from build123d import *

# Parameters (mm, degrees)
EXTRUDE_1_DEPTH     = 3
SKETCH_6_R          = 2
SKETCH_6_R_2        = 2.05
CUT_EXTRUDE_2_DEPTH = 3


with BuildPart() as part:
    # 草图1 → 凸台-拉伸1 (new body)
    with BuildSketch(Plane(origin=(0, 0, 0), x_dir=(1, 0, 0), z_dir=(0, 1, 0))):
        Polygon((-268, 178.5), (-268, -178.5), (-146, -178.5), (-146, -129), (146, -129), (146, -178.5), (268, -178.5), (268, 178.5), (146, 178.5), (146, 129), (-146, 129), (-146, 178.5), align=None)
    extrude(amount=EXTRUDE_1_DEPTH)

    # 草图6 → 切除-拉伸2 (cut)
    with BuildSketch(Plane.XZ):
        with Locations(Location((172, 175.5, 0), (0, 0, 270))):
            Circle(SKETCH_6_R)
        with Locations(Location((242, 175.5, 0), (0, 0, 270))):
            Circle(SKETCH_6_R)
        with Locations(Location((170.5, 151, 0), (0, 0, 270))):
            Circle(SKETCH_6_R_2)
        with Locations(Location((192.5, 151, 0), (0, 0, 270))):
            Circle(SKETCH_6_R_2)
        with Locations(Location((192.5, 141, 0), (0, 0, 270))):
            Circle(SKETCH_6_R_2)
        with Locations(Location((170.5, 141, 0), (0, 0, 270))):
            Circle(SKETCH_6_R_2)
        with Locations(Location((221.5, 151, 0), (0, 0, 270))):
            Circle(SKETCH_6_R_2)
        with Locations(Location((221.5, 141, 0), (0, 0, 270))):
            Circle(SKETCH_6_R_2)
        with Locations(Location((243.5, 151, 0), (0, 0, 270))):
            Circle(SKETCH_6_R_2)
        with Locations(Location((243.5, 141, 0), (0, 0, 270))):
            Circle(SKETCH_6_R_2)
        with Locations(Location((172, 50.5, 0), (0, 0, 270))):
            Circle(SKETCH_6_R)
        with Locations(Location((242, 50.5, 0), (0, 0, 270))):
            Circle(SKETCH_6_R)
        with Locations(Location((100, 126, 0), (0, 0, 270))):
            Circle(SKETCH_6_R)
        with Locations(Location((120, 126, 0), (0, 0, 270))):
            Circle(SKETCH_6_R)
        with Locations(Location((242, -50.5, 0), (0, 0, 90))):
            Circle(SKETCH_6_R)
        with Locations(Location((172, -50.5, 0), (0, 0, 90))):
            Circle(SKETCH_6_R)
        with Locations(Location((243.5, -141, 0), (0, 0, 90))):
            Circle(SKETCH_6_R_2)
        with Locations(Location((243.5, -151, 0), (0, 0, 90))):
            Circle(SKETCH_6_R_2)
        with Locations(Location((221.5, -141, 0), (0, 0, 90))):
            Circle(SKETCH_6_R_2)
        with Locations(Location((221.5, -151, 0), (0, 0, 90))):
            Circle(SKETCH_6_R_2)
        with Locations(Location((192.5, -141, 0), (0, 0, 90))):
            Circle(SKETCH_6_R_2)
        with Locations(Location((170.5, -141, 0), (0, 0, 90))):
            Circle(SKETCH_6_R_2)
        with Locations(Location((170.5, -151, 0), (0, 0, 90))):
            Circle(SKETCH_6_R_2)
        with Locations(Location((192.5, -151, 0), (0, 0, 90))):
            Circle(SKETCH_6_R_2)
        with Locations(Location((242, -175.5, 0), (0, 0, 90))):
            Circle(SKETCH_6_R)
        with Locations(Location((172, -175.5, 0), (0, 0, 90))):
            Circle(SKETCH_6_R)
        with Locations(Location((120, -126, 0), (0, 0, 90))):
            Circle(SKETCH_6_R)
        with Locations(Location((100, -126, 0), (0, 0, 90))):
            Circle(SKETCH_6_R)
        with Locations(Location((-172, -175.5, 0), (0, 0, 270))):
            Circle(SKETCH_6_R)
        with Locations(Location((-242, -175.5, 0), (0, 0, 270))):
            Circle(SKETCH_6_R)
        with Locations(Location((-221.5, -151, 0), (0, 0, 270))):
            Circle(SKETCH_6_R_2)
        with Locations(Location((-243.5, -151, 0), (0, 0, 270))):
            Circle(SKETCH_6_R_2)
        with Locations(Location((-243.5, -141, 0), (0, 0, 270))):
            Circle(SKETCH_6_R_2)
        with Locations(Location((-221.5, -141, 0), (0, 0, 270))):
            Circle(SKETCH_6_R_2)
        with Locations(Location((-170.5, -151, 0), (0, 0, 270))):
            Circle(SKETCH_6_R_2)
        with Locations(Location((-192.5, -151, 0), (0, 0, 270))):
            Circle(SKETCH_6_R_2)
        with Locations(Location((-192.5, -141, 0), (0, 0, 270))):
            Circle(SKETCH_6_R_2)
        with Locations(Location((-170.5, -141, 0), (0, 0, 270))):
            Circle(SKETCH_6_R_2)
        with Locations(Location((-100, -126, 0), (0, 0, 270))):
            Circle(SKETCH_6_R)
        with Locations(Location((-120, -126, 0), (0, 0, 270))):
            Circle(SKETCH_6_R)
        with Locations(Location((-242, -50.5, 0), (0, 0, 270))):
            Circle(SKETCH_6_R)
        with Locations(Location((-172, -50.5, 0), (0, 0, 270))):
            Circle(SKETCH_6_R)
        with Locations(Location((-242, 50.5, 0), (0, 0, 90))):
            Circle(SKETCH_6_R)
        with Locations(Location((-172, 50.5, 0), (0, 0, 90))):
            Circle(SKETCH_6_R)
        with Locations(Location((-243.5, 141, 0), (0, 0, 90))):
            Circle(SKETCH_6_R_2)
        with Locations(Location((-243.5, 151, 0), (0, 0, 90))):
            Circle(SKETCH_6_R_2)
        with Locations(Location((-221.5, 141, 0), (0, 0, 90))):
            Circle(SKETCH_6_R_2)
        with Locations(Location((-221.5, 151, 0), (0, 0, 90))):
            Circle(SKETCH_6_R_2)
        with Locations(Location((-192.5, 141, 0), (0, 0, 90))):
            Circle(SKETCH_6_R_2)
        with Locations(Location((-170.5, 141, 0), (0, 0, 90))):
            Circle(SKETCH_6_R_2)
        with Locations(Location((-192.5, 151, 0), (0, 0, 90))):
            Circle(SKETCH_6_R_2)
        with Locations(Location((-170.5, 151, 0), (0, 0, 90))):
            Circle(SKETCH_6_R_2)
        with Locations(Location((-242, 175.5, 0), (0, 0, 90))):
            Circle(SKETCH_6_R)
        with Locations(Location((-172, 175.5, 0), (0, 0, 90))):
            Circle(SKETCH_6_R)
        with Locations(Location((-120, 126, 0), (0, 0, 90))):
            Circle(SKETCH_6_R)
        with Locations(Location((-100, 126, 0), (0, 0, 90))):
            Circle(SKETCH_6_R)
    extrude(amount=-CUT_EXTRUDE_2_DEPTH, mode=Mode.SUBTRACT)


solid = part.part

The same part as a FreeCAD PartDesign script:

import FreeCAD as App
import Part
import Sketcher
from FreeCAD import Vector
Q = App.Units.Quantity

doc = App.newDocument("Part")
params = doc.addObject("Spreadsheet::Sheet", "Params")
for row, (alias, value) in enumerate([
    ("sketch1_width", "122 mm"),
    ("sketch1_width2", "292 mm"),
    ("sketch1_height", "357 mm"),
    ("sketch1_height2", "49.5 mm"),
    ("pad1_length", "3 mm"),
    ("sketch2_diameter", "4 mm"),
    ("sketch2_diameter2", "4.1 mm"),
    ("pocket1_length", "3 mm"),
], start=1):
    params.set(f"A{row}", alias)
    params.set(f"B{row}", "=" + value)
    params.setAlias(f"B{row}", alias)

body = doc.addObject("PartDesign::Body", "Body")

sketch1 = body.newObject("Sketcher::SketchObject", "Sketch")
sketch1.AttachmentSupport = (doc.getObject("XZ_Plane"), [""])
sketch1.MapMode = "FlatFace"
sketch1.addGeometry(Part.LineSegment(Vector(-268, -178, 0), Vector(-268, 178, 0)), False)
sketch1.addGeometry(Part.LineSegment(Vector(-268, 178, 0), Vector(-146, 178, 0)), False)
sketch1.addGeometry(Part.LineSegment(Vector(-146, 178, 0), Vector(-146, 129, 0)), False)
sketch1.addGeometry(Part.LineSegment(Vector(-146, 129, 0), Vector(146, 129, 0)), False)
sketch1.addGeometry(Part.LineSegment(Vector(146, 129, 0), Vector(146, 178, 0)), False)
sketch1.addGeometry(Part.LineSegment(Vector(146, 178, 0), Vector(268, 178, 0)), False)
sketch1.addGeometry(Part.LineSegment(Vector(268, 178, 0), Vector(268, -178, 0)), False)
sketch1.addGeometry(Part.LineSegment(Vector(268, -178, 0), Vector(146, -178, 0)), False)
sketch1.addGeometry(Part.LineSegment(Vector(146, -178, 0), Vector(146, -129, 0)), False)
sketch1.addGeometry(Part.LineSegment(Vector(146, -129, 0), Vector(-146, -129, 0)), False)
sketch1.addGeometry(Part.LineSegment(Vector(-146, -129, 0), Vector(-146, -178, 0)), False)
sketch1.addGeometry(Part.LineSegment(Vector(-146, -178, 0), Vector(-268, -178, 0)), False)
sketch1.addConstraint(Sketcher.Constraint("Coincident", 0, 2, 1, 1))
sketch1.addConstraint(Sketcher.Constraint("Coincident", 1, 2, 2, 1))
sketch1.addConstraint(Sketcher.Constraint("Coincident", 2, 2, 3, 1))
sketch1.addConstraint(Sketcher.Constraint("Coincident", 3, 2, 4, 1))
sketch1.addConstraint(Sketcher.Constraint("Coincident", 4, 2, 5, 1))
sketch1.addConstraint(Sketcher.Constraint("Coincident", 5, 2, 6, 1))
sketch1.addConstraint(Sketcher.Constraint("Coincident", 6, 2, 7, 1))
sketch1.addConstraint(Sketcher.Constraint("Coincident", 7, 2, 8, 1))
sketch1.addConstraint(Sketcher.Constraint("Coincident", 8, 2, 9, 1))
sketch1.addConstraint(Sketcher.Constraint("Coincident", 9, 2, 10, 1))
sketch1.addConstraint(Sketcher.Constraint("Coincident", 10, 2, 11, 1))
sketch1.addConstraint(Sketcher.Constraint("Coincident", 11, 2, 0, 1))
sketch1.addConstraint(Sketcher.Constraint("Vertical", 0))
sketch1.addConstraint(Sketcher.Constraint("Horizontal", 1))
sketch1.addConstraint(Sketcher.Constraint("Vertical", 2))
sketch1.addConstraint(Sketcher.Constraint("Horizontal", 3))
sketch1.addConstraint(Sketcher.Constraint("Vertical", 4))
sketch1.addConstraint(Sketcher.Constraint("Horizontal", 5))
sketch1.addConstraint(Sketcher.Constraint("Vertical", 6))
sketch1.addConstraint(Sketcher.Constraint("Horizontal", 7))
sketch1.addConstraint(Sketcher.Constraint("Vertical", 8))
sketch1.addConstraint(Sketcher.Constraint("Horizontal", 9))
sketch1.addConstraint(Sketcher.Constraint("Vertical", 10))
sketch1.addConstraint(Sketcher.Constraint("Horizontal", 11))
sketch1.addConstraint(Sketcher.Constraint("Symmetric", 0, 2, 6, 2, -1, 1))
sketch1.addConstraint(Sketcher.Constraint("Symmetric", 2, 2, 8, 2, -1, 1))
sketch1.addConstraint(Sketcher.Constraint("Symmetric", 4, 2, 10, 2, -1, 1))
sketch1.addConstraint(Sketcher.Constraint("Symmetric", 1, 2, 4, 2, -2))
sketch1.addConstraint(Sketcher.Constraint("DistanceX", 1, 1, 1, 2, Q("122 mm")))
sketch1.addConstraint(Sketcher.Constraint("DistanceX", 3, 1, 3, 2, Q("292 mm")))
sketch1.addConstraint(Sketcher.Constraint("DistanceY", 0, 1, 0, 2, Q("357 mm")))
sketch1.addConstraint(Sketcher.Constraint("DistanceY", 2, 2, 2, 1, Q("49.5 mm")))
sketch1.setExpression("Constraints[28]", "Params.sketch1_width")
sketch1.setExpression("Constraints[29]", "Params.sketch1_width2")
sketch1.setExpression("Constraints[30]", "Params.sketch1_height")
sketch1.setExpression("Constraints[31]", "Params.sketch1_height2")
pad1 = body.newObject("PartDesign::Pad", "Pad")
pad1.Profile = sketch1
pad1.setExpression("Length", "Params.pad1_length")
pad1.Reversed = True

sketch2 = body.newObject("Sketcher::SketchObject", "Sketch001")
sketch2.AttachmentSupport = (doc.getObject("XZ_Plane"), [""])
sketch2.MapMode = "FlatFace"
sketch2.addGeometry(Part.Circle(Vector(172, 175.5, 0), Vector(0, 0, 1), 2), False)
sketch2.addGeometry(Part.Circle(Vector(242, 175.5, 0), Vector(0, 0, 1), 2), False)
sketch2.addGeometry(Part.Circle(Vector(170.5, 151, 0), Vector(0, 0, 1), 2), False)
sketch2.addGeometry(Part.Circle(Vector(192.5, 151, 0), Vector(0, 0, 1), 2), False)
sketch2.addGeometry(Part.Circle(Vector(192.5, 141, 0), Vector(0, 0, 1), 2), False)
sketch2.addGeometry(Part.Circle(Vector(170.5, 141, 0), Vector(0, 0, 1), 2), False)
sketch2.addGeometry(Part.Circle(Vector(221.5, 151, 0), Vector(0, 0, 1), 2), False)
sketch2.addGeometry(Part.Circle(Vector(221.5, 141, 0), Vector(0, 0, 1), 2), False)
sketch2.addGeometry(Part.Circle(Vector(243.5, 151, 0), Vector(0, 0, 1), 2), False)
sketch2.addGeometry(Part.Circle(Vector(243.5, 141, 0), Vector(0, 0, 1), 2), False)
sketch2.addGeometry(Part.Circle(Vector(172, 50.5, 0), Vector(0, 0, 1), 2), False)
sketch2.addGeometry(Part.Circle(Vector(242, 50.5, 0), Vector(0, 0, 1), 2), False)
sketch2.addGeometry(Part.Circle(Vector(100, 126, 0), Vector(0, 0, 1), 2), False)
sketch2.addGeometry(Part.Circle(Vector(120, 126, 0), Vector(0, 0, 1), 2), False)
sketch2.addGeometry(Part.Circle(Vector(242, -50.5, 0), Vector(0, 0, 1), 2), False)
sketch2.addGeometry(Part.Circle(Vector(172, -50.5, 0), Vector(0, 0, 1), 2), False)
sketch2.addGeometry(Part.Circle(Vector(243.5, -141, 0), Vector(0, 0, 1), 2), False)
sketch2.addGeometry(Part.Circle(Vector(243.5, -151, 0), Vector(0, 0, 1), 2), False)
sketch2.addGeometry(Part.Circle(Vector(221.5, -141, 0), Vector(0, 0, 1), 2), False)
sketch2.addGeometry(Part.Circle(Vector(221.5, -151, 0), Vector(0, 0, 1), 2), False)
sketch2.addGeometry(Part.Circle(Vector(192.5, -141, 0), Vector(0, 0, 1), 2), False)
sketch2.addGeometry(Part.Circle(Vector(170.5, -141, 0), Vector(0, 0, 1), 2), False)
sketch2.addGeometry(Part.Circle(Vector(170.5, -151, 0), Vector(0, 0, 1), 2), False)
sketch2.addGeometry(Part.Circle(Vector(192.5, -151, 0), Vector(0, 0, 1), 2), False)
sketch2.addGeometry(Part.Circle(Vector(242, -175.5, 0), Vector(0, 0, 1), 2), False)
sketch2.addGeometry(Part.Circle(Vector(172, -175.5, 0), Vector(0, 0, 1), 2), False)
sketch2.addGeometry(Part.Circle(Vector(120, -126, 0), Vector(0, 0, 1), 2), False)
sketch2.addGeometry(Part.Circle(Vector(100, -126, 0), Vector(0, 0, 1), 2), False)
sketch2.addGeometry(Part.Circle(Vector(-172, -175.5, 0), Vector(0, 0, 1), 2), False)
sketch2.addGeometry(Part.Circle(Vector(-242, -175.5, 0), Vector(0, 0, 1), 2), False)
sketch2.addGeometry(Part.Circle(Vector(-221.5, -151, 0), Vector(0, 0, 1), 2), False)
sketch2.addGeometry(Part.Circle(Vector(-243.5, -151, 0), Vector(0, 0, 1), 2), False)
sketch2.addGeometry(Part.Circle(Vector(-243.5, -141, 0), Vector(0, 0, 1), 2), False)
sketch2.addGeometry(Part.Circle(Vector(-221.5, -141, 0), Vector(0, 0, 1), 2), False)
sketch2.addGeometry(Part.Circle(Vector(-170.5, -151, 0), Vector(0, 0, 1), 2), False)
sketch2.addGeometry(Part.Circle(Vector(-192.5, -151, 0), Vector(0, 0, 1), 2), False)
sketch2.addGeometry(Part.Circle(Vector(-192.5, -141, 0), Vector(0, 0, 1), 2), False)
sketch2.addGeometry(Part.Circle(Vector(-170.5, -141, 0), Vector(0, 0, 1), 2), False)
sketch2.addGeometry(Part.Circle(Vector(-100, -126, 0), Vector(0, 0, 1), 2), False)
sketch2.addGeometry(Part.Circle(Vector(-120, -126, 0), Vector(0, 0, 1), 2), False)
sketch2.addGeometry(Part.Circle(Vector(-242, -50.5, 0), Vector(0, 0, 1), 2), False)
sketch2.addGeometry(Part.Circle(Vector(-172, -50.5, 0), Vector(0, 0, 1), 2), False)
sketch2.addGeometry(Part.Circle(Vector(-242, 50.5, 0), Vector(0, 0, 1), 2), False)
sketch2.addGeometry(Part.Circle(Vector(-172, 50.5, 0), Vector(0, 0, 1), 2), False)
sketch2.addGeometry(Part.Circle(Vector(-243.5, 141, 0), Vector(0, 0, 1), 2), False)
sketch2.addGeometry(Part.Circle(Vector(-243.5, 151, 0), Vector(0, 0, 1), 2), False)
sketch2.addGeometry(Part.Circle(Vector(-221.5, 141, 0), Vector(0, 0, 1), 2), False)
sketch2.addGeometry(Part.Circle(Vector(-221.5, 151, 0), Vector(0, 0, 1), 2), False)
sketch2.addGeometry(Part.Circle(Vector(-192.5, 141, 0), Vector(0, 0, 1), 2), False)
sketch2.addGeometry(Part.Circle(Vector(-170.5, 141, 0), Vector(0, 0, 1), 2), False)
sketch2.addGeometry(Part.Circle(Vector(-192.5, 151, 0), Vector(0, 0, 1), 2), False)
sketch2.addGeometry(Part.Circle(Vector(-170.5, 151, 0), Vector(0, 0, 1), 2), False)
sketch2.addGeometry(Part.Circle(Vector(-242, 175.5, 0), Vector(0, 0, 1), 2), False)
sketch2.addGeometry(Part.Circle(Vector(-172, 175.5, 0), Vector(0, 0, 1), 2), False)
sketch2.addGeometry(Part.Circle(Vector(-120, 126, 0), Vector(0, 0, 1), 2), False)
sketch2.addGeometry(Part.Circle(Vector(-100, 126, 0), Vector(0, 0, 1), 2), False)
sketch2.addConstraint(Sketcher.Constraint("Equal", 0, 1))
sketch2.addConstraint(Sketcher.Constraint("Equal", 2, 3))
sketch2.addConstraint(Sketcher.Constraint("Equal", 3, 4))
sketch2.addConstraint(Sketcher.Constraint("Equal", 4, 5))
sketch2.addConstraint(Sketcher.Constraint("Equal", 5, 6))
sketch2.addConstraint(Sketcher.Constraint("Equal", 6, 7))
sketch2.addConstraint(Sketcher.Constraint("Equal", 7, 8))
sketch2.addConstraint(Sketcher.Constraint("Equal", 8, 9))
sketch2.addConstraint(Sketcher.Constraint("Equal", 1, 10))
sketch2.addConstraint(Sketcher.Constraint("Equal", 10, 11))
sketch2.addConstraint(Sketcher.Constraint("Equal", 11, 12))
sketch2.addConstraint(Sketcher.Constraint("Equal", 12, 13))
sketch2.addConstraint(Sketcher.Constraint("Equal", 13, 14))
sketch2.addConstraint(Sketcher.Constraint("Equal", 14, 15))
sketch2.addConstraint(Sketcher.Constraint("Equal", 9, 16))
sketch2.addConstraint(Sketcher.Constraint("Equal", 16, 17))
sketch2.addConstraint(Sketcher.Constraint("Equal", 17, 18))
sketch2.addConstraint(Sketcher.Constraint("Equal", 18, 19))
sketch2.addConstraint(Sketcher.Constraint("Equal", 19, 20))
sketch2.addConstraint(Sketcher.Constraint("Equal", 20, 21))
sketch2.addConstraint(Sketcher.Constraint("Equal", 21, 22))
sketch2.addConstraint(Sketcher.Constraint("Equal", 22, 23))
sketch2.addConstraint(Sketcher.Constraint("Equal", 15, 24))
sketch2.addConstraint(Sketcher.Constraint("Equal", 24, 25))
sketch2.addConstraint(Sketcher.Constraint("Equal", 25, 26))
sketch2.addConstraint(Sketcher.Constraint("Equal", 26, 27))
sketch2.addConstraint(Sketcher.Constraint("Equal", 27, 28))
sketch2.addConstraint(Sketcher.Constraint("Equal", 28, 29))
sketch2.addConstraint(Sketcher.Constraint("Equal", 23, 30))
sketch2.addConstraint(Sketcher.Constraint("Equal", 30, 31))
sketch2.addConstraint(Sketcher.Constraint("Equal", 31, 32))
sketch2.addConstraint(Sketcher.Constraint("Equal", 32, 33))
sketch2.addConstraint(Sketcher.Constraint("Equal", 33, 34))
sketch2.addConstraint(Sketcher.Constraint("Equal", 34, 35))
sketch2.addConstraint(Sketcher.Constraint("Equal", 35, 36))
sketch2.addConstraint(Sketcher.Constraint("Equal", 36, 37))
sketch2.addConstraint(Sketcher.Constraint("Equal", 29, 38))
sketch2.addConstraint(Sketcher.Constraint("Equal", 38, 39))
sketch2.addConstraint(Sketcher.Constraint("Equal", 39, 40))
sketch2.addConstraint(Sketcher.Constraint("Equal", 40, 41))
sketch2.addConstraint(Sketcher.Constraint("Equal", 41, 42))
sketch2.addConstraint(Sketcher.Constraint("Equal", 42, 43))
sketch2.addConstraint(Sketcher.Constraint("Equal", 37, 44))
sketch2.addConstraint(Sketcher.Constraint("Equal", 44, 45))
sketch2.addConstraint(Sketcher.Constraint("Equal", 45, 46))
sketch2.addConstraint(Sketcher.Constraint("Equal", 46, 47))
sketch2.addConstraint(Sketcher.Constraint("Equal", 47, 48))
sketch2.addConstraint(Sketcher.Constraint("Equal", 48, 49))
sketch2.addConstraint(Sketcher.Constraint("Equal", 49, 50))
sketch2.addConstraint(Sketcher.Constraint("Equal", 50, 51))
sketch2.addConstraint(Sketcher.Constraint("Equal", 43, 52))
sketch2.addConstraint(Sketcher.Constraint("Equal", 52, 53))
sketch2.addConstraint(Sketcher.Constraint("Equal", 53, 54))
sketch2.addConstraint(Sketcher.Constraint("Equal", 54, 55))
sketch2.addConstraint(Sketcher.Constraint("Symmetric", 0, 3, 28, 3, -1, 1))
sketch2.addConstraint(Sketcher.Constraint("Symmetric", 1, 3, 29, 3, -1, 1))
sketch2.addConstraint(Sketcher.Constraint("Symmetric", 6, 3, 30, 3, -1, 1))
sketch2.addConstraint(Sketcher.Constraint("Symmetric", 8, 3, 31, 3, -1, 1))
sketch2.addConstraint(Sketcher.Constraint("Symmetric", 9, 3, 32, 3, -1, 1))
sketch2.addConstraint(Sketcher.Constraint("Symmetric", 7, 3, 33, 3, -1, 1))
sketch2.addConstraint(Sketcher.Constraint("Symmetric", 2, 3, 34, 3, -1, 1))
sketch2.addConstraint(Sketcher.Constraint("Symmetric", 3, 3, 35, 3, -1, 1))
sketch2.addConstraint(Sketcher.Constraint("Symmetric", 4, 3, 36, 3, -1, 1))
sketch2.addConstraint(Sketcher.Constraint("Symmetric", 5, 3, 37, 3, -1, 1))
sketch2.addConstraint(Sketcher.Constraint("Symmetric", 12, 3, 38, 3, -1, 1))
sketch2.addConstraint(Sketcher.Constraint("Symmetric", 13, 3, 39, 3, -1, 1))
sketch2.addConstraint(Sketcher.Constraint("Symmetric", 11, 3, 40, 3, -1, 1))
sketch2.addConstraint(Sketcher.Constraint("Symmetric", 10, 3, 41, 3, -1, 1))
sketch2.addConstraint(Sketcher.Constraint("Symmetric", 14, 3, 42, 3, -1, 1))
sketch2.addConstraint(Sketcher.Constraint("Symmetric", 15, 3, 43, 3, -1, 1))
sketch2.addConstraint(Sketcher.Constraint("Symmetric", 16, 3, 44, 3, -1, 1))
sketch2.addConstraint(Sketcher.Constraint("Symmetric", 17, 3, 45, 3, -1, 1))
sketch2.addConstraint(Sketcher.Constraint("Symmetric", 18, 3, 46, 3, -1, 1))
sketch2.addConstraint(Sketcher.Constraint("Symmetric", 19, 3, 47, 3, -1, 1))
sketch2.addConstraint(Sketcher.Constraint("Symmetric", 20, 3, 48, 3, -1, 1))
sketch2.addConstraint(Sketcher.Constraint("Symmetric", 21, 3, 49, 3, -1, 1))
sketch2.addConstraint(Sketcher.Constraint("Symmetric", 23, 3, 50, 3, -1, 1))
sketch2.addConstraint(Sketcher.Constraint("Symmetric", 22, 3, 51, 3, -1, 1))
sketch2.addConstraint(Sketcher.Constraint("Symmetric", 24, 3, 52, 3, -1, 1))
sketch2.addConstraint(Sketcher.Constraint("Symmetric", 25, 3, 53, 3, -1, 1))
sketch2.addConstraint(Sketcher.Constraint("Symmetric", 26, 3, 54, 3, -1, 1))
sketch2.addConstraint(Sketcher.Constraint("Symmetric", 27, 3, 55, 3, -1, 1))
sketch2.addConstraint(Sketcher.Constraint("Symmetric", 25, 3, 28, 3, -2))
sketch2.addConstraint(Sketcher.Constraint("Symmetric", 24, 3, 29, 3, -2))
sketch2.addConstraint(Sketcher.Constraint("Symmetric", 19, 3, 30, 3, -2))
sketch2.addConstraint(Sketcher.Constraint("Symmetric", 17, 3, 31, 3, -2))
sketch2.addConstraint(Sketcher.Constraint("Symmetric", 16, 3, 32, 3, -2))
sketch2.addConstraint(Sketcher.Constraint("Symmetric", 18, 3, 33, 3, -2))
sketch2.addConstraint(Sketcher.Constraint("Symmetric", 22, 3, 34, 3, -2))
sketch2.addConstraint(Sketcher.Constraint("Symmetric", 23, 3, 35, 3, -2))
sketch2.addConstraint(Sketcher.Constraint("Symmetric", 20, 3, 36, 3, -2))
sketch2.addConstraint(Sketcher.Constraint("Symmetric", 21, 3, 37, 3, -2))
sketch2.addConstraint(Sketcher.Constraint("Symmetric", 27, 3, 38, 3, -2))
sketch2.addConstraint(Sketcher.Constraint("Symmetric", 26, 3, 39, 3, -2))
sketch2.addConstraint(Sketcher.Constraint("Symmetric", 14, 3, 40, 3, -2))
sketch2.addConstraint(Sketcher.Constraint("Symmetric", 15, 3, 41, 3, -2))
sketch2.addConstraint(Sketcher.Constraint("Horizontal", 0, 3, 1, 3))
sketch2.addConstraint(Sketcher.Constraint("Horizontal", 2, 3, 3, 3))
sketch2.addConstraint(Sketcher.Constraint("Horizontal", 4, 3, 5, 3))
sketch2.addConstraint(Sketcher.Constraint("Horizontal", 3, 3, 6, 3))
sketch2.addConstraint(Sketcher.Constraint("Horizontal", 5, 3, 7, 3))
sketch2.addConstraint(Sketcher.Constraint("Horizontal", 6, 3, 8, 3))
sketch2.addConstraint(Sketcher.Constraint("Horizontal", 7, 3, 9, 3))
sketch2.addConstraint(Sketcher.Constraint("Horizontal", 10, 3, 11, 3))
sketch2.addConstraint(Sketcher.Constraint("Horizontal", 12, 3, 13, 3))
sketch2.addConstraint(Sketcher.Constraint("Vertical", 3, 3, 4, 3))
sketch2.addConstraint(Sketcher.Constraint("Vertical", 2, 3, 5, 3))
sketch2.addConstraint(Sketcher.Constraint("Vertical", 6, 3, 7, 3))
sketch2.addConstraint(Sketcher.Constraint("Vertical", 8, 3, 9, 3))
sketch2.addConstraint(Sketcher.Constraint("Vertical", 0, 3, 10, 3))
sketch2.addConstraint(Sketcher.Constraint("Vertical", 1, 3, 11, 3))
sketch2.addConstraint(Sketcher.Constraint("Diameter", 0, Q("4 mm")))
sketch2.addConstraint(Sketcher.Constraint("Diameter", 2, Q("4.1 mm")))
sketch2.addConstraint(Sketcher.Constraint("DistanceX", -1, 1, 0, 3, Q("172 mm")))
sketch2.addConstraint(Sketcher.Constraint("DistanceX", -1, 1, 1, 3, Q("242 mm")))
sketch2.addConstraint(Sketcher.Constraint("DistanceY", -1, 1, 2, 3, Q("151 mm")))
sketch2.addConstraint(Sketcher.Constraint("DistanceY", -1, 1, 4, 3, Q("141 mm")))
sketch2.addConstraint(Sketcher.Constraint("DistanceX", -1, 1, 12, 3, Q("100 mm")))
sketch2.addConstraint(Sketcher.Constraint("DistanceY", -1, 1, 12, 3, Q("126 mm")))
sketch2.addConstraint(Sketcher.Constraint("DistanceX", -1, 1, 13, 3, Q("120 mm")))
sketch2.addConstraint(Sketcher.Constraint("DistanceX", 2, 3, 3, 3, Q("22 mm")))
sketch2.addConstraint(Sketcher.Constraint("DistanceX", 3, 3, 6, 3, Q("29 mm")))
sketch2.addConstraint(Sketcher.Constraint("DistanceX", 6, 3, 8, 3, Q("22 mm")))
sketch2.addConstraint(Sketcher.Constraint("DistanceY", 14, 3, 11, 3, Q("101 mm")))
sketch2.addConstraint(Sketcher.Constraint("DistanceX", 30, 3, 22, 3, Q("392 mm")))
sketch2.addConstraint(Sketcher.Constraint("DistanceY", -1, 1, 0, 3, Q("175.5 mm")))
sketch2.setExpression("Constraints[111]", "Params.sketch2_diameter")
sketch2.setExpression("Constraints[112]", "Params.sketch2_diameter2")
pocket1 = body.newObject("PartDesign::Pocket", "Pocket")
pocket1.Profile = sketch2
pocket1.setExpression("Length", "Params.pocket1_length")

doc.recompute()
